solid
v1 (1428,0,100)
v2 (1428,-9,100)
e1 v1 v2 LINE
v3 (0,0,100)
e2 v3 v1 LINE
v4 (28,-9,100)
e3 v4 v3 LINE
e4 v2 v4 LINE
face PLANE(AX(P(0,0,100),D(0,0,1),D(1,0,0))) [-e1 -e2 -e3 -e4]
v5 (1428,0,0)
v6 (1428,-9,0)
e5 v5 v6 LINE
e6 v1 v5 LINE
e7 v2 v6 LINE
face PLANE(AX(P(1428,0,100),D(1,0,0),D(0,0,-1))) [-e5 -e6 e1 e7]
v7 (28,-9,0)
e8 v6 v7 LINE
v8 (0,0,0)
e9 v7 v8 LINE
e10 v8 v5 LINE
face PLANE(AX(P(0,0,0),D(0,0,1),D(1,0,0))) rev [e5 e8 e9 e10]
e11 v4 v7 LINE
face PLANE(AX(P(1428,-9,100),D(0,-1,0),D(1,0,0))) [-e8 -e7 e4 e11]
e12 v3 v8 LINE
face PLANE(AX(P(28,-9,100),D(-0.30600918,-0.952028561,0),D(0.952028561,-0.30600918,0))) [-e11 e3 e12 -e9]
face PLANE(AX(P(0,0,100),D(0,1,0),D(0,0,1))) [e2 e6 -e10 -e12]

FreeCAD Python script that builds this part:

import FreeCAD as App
import Part
import Sketcher
from FreeCAD import Vector

doc = App.newDocument("Part")
params = doc.addObject("Spreadsheet::Sheet", "Params")
for row, (alias, value) in enumerate([
    ("sketch1_width", "1428 mm"),
    ("sketch1_width2", "1400 mm"),
    ("sketch1_height", "9 mm"),
    ("pad1_length", "100 mm"),
], start=1):
    params.set(f"A{row}", alias)
    params.set(f"B{row}", "=" + value)
    params.setAlias(f"B{row}", alias)

body = doc.addObject("PartDesign::Body", "Body")

sketch1 = doc.addObject("Sketcher::SketchObject", "Sketch")
body.addObject(sketch1)
sketch1.AttachmentSupport = (doc.XY_Plane, [""])
sketch1.MapMode = "FlatFace"
sketch1.addGeometry([
    Part.LineSegment(Vector(1428, 0, 0), Vector(0, 0, 0)),
    Part.LineSegment(Vector(0, 0, 0), Vector(28, -9, 0)),
    Part.LineSegment(Vector(28, -9, 0), Vector(1428, -9, 0)),
    Part.LineSegment(Vector(1428, -9, 0), Vector(1428, 0, 0)),
], False)
sketch1.addConstraint([
    Sketcher.Constraint("Coincident", 0, 2, 1, 1),
    Sketcher.Constraint("Coincident", 1, 2, 2, 1),
    Sketcher.Constraint("Coincident", 2, 2, 3, 1),
    Sketcher.Constraint("Coincident", 3, 2, 0, 1),
    Sketcher.Constraint("Horizontal", 0),
    Sketcher.Constraint("Horizontal", 2),
    Sketcher.Constraint("Vertical", 3),
    Sketcher.Constraint("Coincident", 0, 2, -1, 1),
    Sketcher.Constraint("DistanceX", 0, 2, 0, 1, 1428.0),
    Sketcher.Constraint("DistanceX", 2, 1, 2, 2, 1400.0),
    Sketcher.Constraint("DistanceY", 3, 1, 3, 2, 9.0),
])
sketch1.setExpression("Constraints[8]", "Params.sketch1_width")
sketch1.setExpression("Constraints[9]", "Params.sketch1_width2")
sketch1.setExpression("Constraints[10]", "Params.sketch1_height")
pad1 = doc.addObject("PartDesign::Pad", "Pad")
body.addObject(pad1)
pad1.Profile = sketch1
pad1.setExpression("Length", "Params.pad1_length")

doc.recompute()
